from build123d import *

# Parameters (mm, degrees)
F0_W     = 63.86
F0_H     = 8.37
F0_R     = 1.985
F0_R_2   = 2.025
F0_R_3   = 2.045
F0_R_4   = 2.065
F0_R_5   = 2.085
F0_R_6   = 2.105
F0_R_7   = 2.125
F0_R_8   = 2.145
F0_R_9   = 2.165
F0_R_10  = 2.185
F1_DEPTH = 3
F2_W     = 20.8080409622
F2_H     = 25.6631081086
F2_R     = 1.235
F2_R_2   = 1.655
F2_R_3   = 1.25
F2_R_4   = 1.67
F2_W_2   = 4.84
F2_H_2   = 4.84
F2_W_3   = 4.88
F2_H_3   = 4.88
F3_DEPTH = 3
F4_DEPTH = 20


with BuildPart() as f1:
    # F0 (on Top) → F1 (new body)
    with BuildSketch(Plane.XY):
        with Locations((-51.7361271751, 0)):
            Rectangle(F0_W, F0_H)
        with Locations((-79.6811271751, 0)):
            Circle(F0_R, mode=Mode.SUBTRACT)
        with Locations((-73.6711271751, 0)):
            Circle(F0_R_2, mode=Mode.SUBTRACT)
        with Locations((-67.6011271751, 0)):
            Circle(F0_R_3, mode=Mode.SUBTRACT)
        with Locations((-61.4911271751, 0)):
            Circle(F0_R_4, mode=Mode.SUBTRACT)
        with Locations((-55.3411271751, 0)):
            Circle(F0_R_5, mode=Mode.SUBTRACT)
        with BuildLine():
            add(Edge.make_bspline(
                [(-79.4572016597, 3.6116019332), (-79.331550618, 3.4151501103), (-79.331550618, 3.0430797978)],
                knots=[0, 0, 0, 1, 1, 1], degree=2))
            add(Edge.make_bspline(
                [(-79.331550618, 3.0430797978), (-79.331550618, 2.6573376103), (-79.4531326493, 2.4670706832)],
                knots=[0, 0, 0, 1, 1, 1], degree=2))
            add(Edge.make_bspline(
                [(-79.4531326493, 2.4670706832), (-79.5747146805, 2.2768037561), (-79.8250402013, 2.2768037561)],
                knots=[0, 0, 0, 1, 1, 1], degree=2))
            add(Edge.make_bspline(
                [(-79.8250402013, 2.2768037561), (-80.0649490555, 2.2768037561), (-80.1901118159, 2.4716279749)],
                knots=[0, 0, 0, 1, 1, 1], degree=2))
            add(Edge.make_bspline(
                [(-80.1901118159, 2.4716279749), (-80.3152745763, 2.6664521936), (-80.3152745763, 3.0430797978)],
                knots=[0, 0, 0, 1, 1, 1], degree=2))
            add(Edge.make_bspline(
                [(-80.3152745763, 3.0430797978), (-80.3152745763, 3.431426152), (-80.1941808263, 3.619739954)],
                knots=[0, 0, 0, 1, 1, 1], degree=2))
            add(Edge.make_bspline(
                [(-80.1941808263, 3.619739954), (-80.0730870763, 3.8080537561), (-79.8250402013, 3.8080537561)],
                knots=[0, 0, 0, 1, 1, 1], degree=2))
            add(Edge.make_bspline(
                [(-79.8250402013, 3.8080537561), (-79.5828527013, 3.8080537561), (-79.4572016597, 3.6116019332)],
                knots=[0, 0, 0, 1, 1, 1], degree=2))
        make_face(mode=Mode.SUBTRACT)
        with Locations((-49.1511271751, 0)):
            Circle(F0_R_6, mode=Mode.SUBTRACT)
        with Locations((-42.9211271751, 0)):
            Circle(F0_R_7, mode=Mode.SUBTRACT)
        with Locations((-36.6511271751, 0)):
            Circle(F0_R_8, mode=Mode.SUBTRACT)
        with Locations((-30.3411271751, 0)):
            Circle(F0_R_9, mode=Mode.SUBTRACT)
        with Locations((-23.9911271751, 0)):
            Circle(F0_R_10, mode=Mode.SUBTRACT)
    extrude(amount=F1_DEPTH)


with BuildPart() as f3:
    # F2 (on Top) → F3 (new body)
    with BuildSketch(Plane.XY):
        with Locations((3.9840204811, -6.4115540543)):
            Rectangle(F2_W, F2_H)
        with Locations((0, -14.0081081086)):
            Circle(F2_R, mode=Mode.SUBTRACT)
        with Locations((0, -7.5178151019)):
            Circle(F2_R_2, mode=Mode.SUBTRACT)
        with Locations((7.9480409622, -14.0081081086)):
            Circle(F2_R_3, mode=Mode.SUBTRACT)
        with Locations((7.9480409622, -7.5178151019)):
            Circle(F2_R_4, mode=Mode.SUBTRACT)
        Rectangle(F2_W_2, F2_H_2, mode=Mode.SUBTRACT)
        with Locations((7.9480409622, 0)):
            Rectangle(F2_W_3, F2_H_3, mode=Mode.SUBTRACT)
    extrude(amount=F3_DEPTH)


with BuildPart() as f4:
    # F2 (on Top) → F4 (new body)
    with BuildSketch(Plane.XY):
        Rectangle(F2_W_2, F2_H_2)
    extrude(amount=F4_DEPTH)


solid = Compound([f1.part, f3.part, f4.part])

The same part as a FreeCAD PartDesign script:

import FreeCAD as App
import Part
import Sketcher
Q = App.Units.Quantity

doc = App.newDocument("Part")
body = doc.addObject("PartDesign::Body", "Body")

sketch1 = doc.addObject("Sketcher::SketchObject", "Sketch")
body.addObject(sketch1)
sketch1.AttachmentSupport = (doc.XY_Plane, [""])
sketch1.MapMode = "FlatFace"
sketch1.addGeometry(Part.LineSegment(App.Vector(-83.666127, 4.185, 0), App.Vector(-83.666127, -4.185, 0)), False)
sketch1.addGeometry(Part.LineSegment(App.Vector(-83.666127, -4.185, 0), App.Vector(-19.806127, -4.185, 0)), False)
sketch1.addGeometry(Part.LineSegment(App.Vector(-19.806127, -4.185, 0), App.Vector(-19.806127, 4.185, 0)), False)
sketch1.addGeometry(Part.LineSegment(App.Vector(-19.806127, 4.185, 0), App.Vector(-83.666127, 4.185, 0)), False)
sketch1.addGeometry(Part.Circle(App.Vector(-79.681127, 0, 0), App.Vector(0, 0, 1), 1.985), False)
sketch1.addGeometry(Part.Circle(App.Vector(-73.671127, 0, 0), App.Vector(0, 0, 1), 2.025), False)
sketch1.addGeometry(Part.Circle(App.Vector(-67.601127, 0, 0), App.Vector(0, 0, 1), 2.045), False)
sketch1.addGeometry(Part.Circle(App.Vector(-61.491127, 0, 0), App.Vector(0, 0, 1), 2.065), False)
sketch1.addGeometry(Part.Circle(App.Vector(-55.341127, 0, 0), App.Vector(0, 0, 1), 2.085), False)
sketch1.addGeometry(Part.Circle(App.Vector(-49.151127, 0, 0), App.Vector(0, 0, 1), 2.105), False)
sketch1.addGeometry(Part.Circle(App.Vector(-42.921127, 0, 0), App.Vector(0, 0, 1), 2.125), False)
sketch1.addGeometry(Part.Circle(App.Vector(-36.651127, 0, 0), App.Vector(0, 0, 1), 2.145), False)
sketch1.addGeometry(Part.Circle(App.Vector(-30.341127, 0, 0), App.Vector(0, 0, 1), 2.165), False)
sketch1.addGeometry(Part.Circle(App.Vector(-23.991127, 0, 0), App.Vector(0, 0, 1), 2.185), False)
sketch1.addGeometry(Part.BSplineCurve([App.Vector(-80.194181, 3.61974, 0), App.Vector(-80.073087, 3.808054, 0), App.Vector(-79.582853, 3.808054, 0), App.Vector(-79.457202, 3.611602, 0)], [3, 1, 3], [0, 1, 1.976377953], False, 2, [1, 1, 1, 1], False), False)
sketch1.addGeometry(Part.BSplineCurve([App.Vector(-79.457202, 3.611602, 0), App.Vector(-79.331551, 3.41515, 0), App.Vector(-79.331551, 2.657338, 0), App.Vector(-79.453133, 2.467071, 0)], [3, 1, 3], [0, 1, 2.036745407], False, 2, [1, 1, 1, 1], False), False)
sketch1.addGeometry(Part.BSplineCurve([App.Vector(-79.453133, 2.467071, 0), App.Vector(-79.574715, 2.276804, 0), App.Vector(-80.064949, 2.276804, 0), App.Vector(-80.190112, 2.471628, 0)], [3, 1, 3], [0, 1, 1.958387517], False, 2, [1, 1, 1, 1], False), False)
sketch1.addGeometry(Part.BSplineCurve([App.Vector(-80.190112, 2.471628, 0), App.Vector(-80.315275, 2.666452, 0), App.Vector(-80.315275, 3.431426, 0), App.Vector(-80.194181, 3.61974, 0)], [3, 1, 3], [0, 1, 2.031114952], False, 2, [1, 1, 1, 1], False), False)
sketch1.addConstraint(Sketcher.Constraint("Block", 14))
sketch1.addConstraint(Sketcher.Constraint("Block", 15))
sketch1.addConstraint(Sketcher.Constraint("Block", 16))
sketch1.addConstraint(Sketcher.Constraint("Block", 17))
sketch1.addConstraint(Sketcher.Constraint("Coincident", 0, 2, 1, 1))
sketch1.addConstraint(Sketcher.Constraint("Coincident", 1, 2, 2, 1))
sketch1.addConstraint(Sketcher.Constraint("Coincident", 2, 2, 3, 1))
sketch1.addConstraint(Sketcher.Constraint("Coincident", 3, 2, 0, 1))
sketch1.addConstraint(Sketcher.Constraint("Vertical", 0))
sketch1.addConstraint(Sketcher.Constraint("Horizontal", 1))
sketch1.addConstraint(Sketcher.Constraint("Vertical", 2))
sketch1.addConstraint(Sketcher.Constraint("Horizontal", 3))
sketch1.addConstraint(Sketcher.Constraint("PointOnObject", 4, 3, -1))
sketch1.addConstraint(Sketcher.Constraint("PointOnObject", 5, 3, -1))
sketch1.addConstraint(Sketcher.Constraint("PointOnObject", 6, 3, -1))
sketch1.addConstraint(Sketcher.Constraint("PointOnObject", 7, 3, -1))
sketch1.addConstraint(Sketcher.Constraint("PointOnObject", 8, 3, -1))
sketch1.addConstraint(Sketcher.Constraint("PointOnObject", 9, 3, -1))
sketch1.addConstraint(Sketcher.Constraint("PointOnObject", 10, 3, -1))
sketch1.addConstraint(Sketcher.Constraint("PointOnObject", 11, 3, -1))
sketch1.addConstraint(Sketcher.Constraint("PointOnObject", 12, 3, -1))
sketch1.addConstraint(Sketcher.Constraint("PointOnObject", 13, 3, -1))
sketch1.addConstraint(Sketcher.Constraint("Diameter", 4, Q("3.97 mm")))
sketch1.addConstraint(Sketcher.Constraint("Diameter", 5, Q("4.05 mm")))
sketch1.addConstraint(Sketcher.Constraint("Diameter", 6, Q("4.09 mm")))
sketch1.addConstraint(Sketcher.Constraint("Diameter", 7, Q("4.13 mm")))
sketch1.addConstraint(Sketcher.Constraint("Diameter", 8, Q("4.17 mm")))
sketch1.addConstraint(Sketcher.Constraint("Diameter", 9, Q("4.21 mm")))
sketch1.addConstraint(Sketcher.Constraint("Diameter", 10, Q("4.25 mm")))
sketch1.addConstraint(Sketcher.Constraint("Diameter", 11, Q("4.29 mm")))
sketch1.addConstraint(Sketcher.Constraint("Diameter", 12, Q("4.33 mm")))
sketch1.addConstraint(Sketcher.Constraint("Diameter", 13, Q("4.37 mm")))
sketch1.addConstraint(Sketcher.Constraint("DistanceX", 8, 3, 12, 3, Q("25 mm")))
sketch1.addConstraint(Sketcher.Constraint("DistanceX", 1, 1, 1, 2, Q("63.86 mm")))
sketch1.addConstraint(Sketcher.Constraint("DistanceY", 0, 2, 0, 1, Q("8.37 mm")))
sketch1.addConstraint(Sketcher.Constraint("DistanceX", 9, 3, 11, 3, Q("12.5 mm")))
sketch1.addConstraint(Sketcher.Constraint("DistanceX", 4, 3, 5, 3, Q("6.01 mm")))
sketch1.addConstraint(Sketcher.Constraint("DistanceX", 5, 3, 6, 3, Q("6.07 mm")))
sketch1.addConstraint(Sketcher.Constraint("DistanceX", 6, 3, 7, 3, Q("6.11 mm")))
sketch1.addConstraint(Sketcher.Constraint("DistanceX", 7, 3, 8, 3, Q("6.15 mm")))
sketch1.addConstraint(Sketcher.Constraint("DistanceX", 8, 3, 9, 3, Q("6.19 mm")))
sketch1.addConstraint(Sketcher.Constraint("DistanceX", 9, 3, 10, 3, Q("6.23 mm")))
sketch1.addConstraint(Sketcher.Constraint("DistanceX", 12, 3, 13, 3, Q("6.35 mm")))
sketch1.addConstraint(Sketcher.Constraint("DistanceY", 0, 2, -1, 1, Q("4.185 mm")))
sketch1.addConstraint(Sketcher.Constraint("DistanceX", 0, 2, 4, 3, Q("3.985 mm")))
sketch1.addConstraint(Sketcher.Constraint("DistanceX", 4, 3, -1, 1, Q("79.681127 mm")))
pad1 = doc.addObject("PartDesign::Pad", "Pad")
body.addObject(pad1)
pad1.Profile = sketch1
pad1.Length = 3
body2 = doc.addObject("PartDesign::Body", "Body001")

sketch2 = doc.addObject("Sketcher::SketchObject", "Sketch001")
body2.addObject(sketch2)
sketch2.AttachmentSupport = (doc.getObject("XY_Plane001"), [""])
sketch2.MapMode = "FlatFace"
sketch2.addGeometry(Part.LineSegment(App.Vector(-6.4, 6.4, 0), App.Vector(-6.4, -19.2, 0)), False)
sketch2.addGeometry(Part.LineSegment(App.Vector(-6.4, -19.2, 0), App.Vector(14.4, -19.2, 0)), False)
sketch2.addGeometry(Part.LineSegment(App.Vector(14.4, -19.2, 0), App.Vector(14.4, 6.4, 0)), False)
sketch2.addGeometry(Part.LineSegment(App.Vector(14.4, 6.4, 0), App.Vector(-6.4, 6.4, 0)), False)
sketch2.addGeometry(Part.Circle(App.Vector(0, -14, 0), App.Vector(0, 0, 1), 1.2), False)
sketch2.addGeometry(Part.Circle(App.Vector(0, -7.5, 0), App.Vector(0, 0, 1), 1.7), False)
sketch2.addGeometry(Part.Circle(App.Vector(7.9, -14, 0), App.Vector(0, 0, 1), 1.2), False)
sketch2.addGeometry(Part.Circle(App.Vector(7.9, -7.5, 0), App.Vector(0, 0, 1), 1.7), False)
sketch2.addGeometry(Part.LineSegment(App.Vector(2.4, -2.4, 0), App.Vector(-2.4, -2.4, 0)), False)
sketch2.addGeometry(Part.LineSegment(App.Vector(-2.4, -2.4, 0), App.Vector(-2.4, 2.4, 0)), False)
sketch2.addGeometry(Part.LineSegment(App.Vector(-2.4, 2.4, 0), App.Vector(2.4, 2.4, 0)), False)
sketch2.addGeometry(Part.LineSegment(App.Vector(2.4, 2.4, 0), App.Vector(2.4, -2.4, 0)), False)
sketch2.addGeometry(Part.LineSegment(App.Vector(10.4, -2.4, 0), App.Vector(5.5, -2.4, 0)), False)
sketch2.addGeometry(Part.LineSegment(App.Vector(5.5, -2.4, 0), App.Vector(5.5, 2.4, 0)), False)
sketch2.addGeometry(Part.LineSegment(App.Vector(5.5, 2.4, 0), App.Vector(10.4, 2.4, 0)), False)
sketch2.addGeometry(Part.LineSegment(App.Vector(10.4, 2.4, 0), App.Vector(10.4, -2.4, 0)), False)
sketch2.addConstraint(Sketcher.Constraint("Coincident", 0, 2, 1, 1))
sketch2.addConstraint(Sketcher.Constraint("Coincident", 1, 2, 2, 1))
sketch2.addConstraint(Sketcher.Constraint("Coincident", 2, 2, 3, 1))
sketch2.addConstraint(Sketcher.Constraint("Coincident", 3, 2, 0, 1))
sketch2.addConstraint(Sketcher.Constraint("Coincident", 8, 2, 9, 1))
sketch2.addConstraint(Sketcher.Constraint("Coincident", 9, 2, 10, 1))
sketch2.addConstraint(Sketcher.Constraint("Coincident", 10, 2, 11, 1))
sketch2.addConstraint(Sketcher.Constraint("Coincident", 11, 2, 8, 1))
sketch2.addConstraint(Sketcher.Constraint("Coincident", 12, 2, 13, 1))
sketch2.addConstraint(Sketcher.Constraint("Coincident", 13, 2, 14, 1))
sketch2.addConstraint(Sketcher.Constraint("Coincident", 14, 2, 15, 1))
sketch2.addConstraint(Sketcher.Constraint("Coincident", 15, 2, 12, 1))
sketch2.addConstraint(Sketcher.Constraint("Vertical", 0))
sketch2.addConstraint(Sketcher.Constraint("Horizontal", 1))
sketch2.addConstraint(Sketcher.Constraint("Vertical", 2))
sketch2.addConstraint(Sketcher.Constraint("Horizontal", 3))
sketch2.addConstraint(Sketcher.Constraint("Horizontal", 8))
sketch2.addConstraint(Sketcher.Constraint("Vertical", 9))
sketch2.addConstraint(Sketcher.Constraint("Horizontal", 10))
sketch2.addConstraint(Sketcher.Constraint("Vertical", 11))
sketch2.addConstraint(Sketcher.Constraint("Horizontal", 12))
sketch2.addConstraint(Sketcher.Constraint("Vertical", 13))
sketch2.addConstraint(Sketcher.Constraint("Horizontal", 14))
sketch2.addConstraint(Sketcher.Constraint("Vertical", 15))
sketch2.addConstraint(Sketcher.Constraint("Symmetric", 8, 2, 10, 2, -1, 1))
sketch2.addConstraint(Sketcher.Constraint("PointOnObject", 4, 3, -2))
sketch2.addConstraint(Sketcher.Constraint("PointOnObject", 5, 3, -2))
sketch2.addConstraint(Sketcher.Constraint("Horizontal", 4, 3, 6, 3))
sketch2.addConstraint(Sketcher.Constraint("Horizontal", 5, 3, 7, 3))
sketch2.addConstraint(Sketcher.Constraint("Vertical", 6, 3, 7, 3))
sketch2.addConstraint(Sketcher.Constraint("Equal", 10, 9))
sketch2.addConstraint(Sketcher.Constraint("Equal", 14, 13))
sketch2.addConstraint(Sketcher.Constraint("Diameter", 6, Q("2.5 mm")))
sketch2.addConstraint(Sketcher.Constraint("Diameter", 4, Q("2.47 mm")))
sketch2.addConstraint(Sketcher.Constraint("Diameter", 5, Q("3.31 mm")))
sketch2.addConstraint(Sketcher.Constraint("Diameter", 7, Q("3.34 mm")))
sketch2.addConstraint(Sketcher.Constraint("DistanceX", 3, 2, 8, 2, Q("4 mm")))
sketch2.addConstraint(Sketcher.Constraint("DistanceY", 9, 2, 3, 2, Q("4 mm")))
sketch2.addConstraint(Sketcher.Constraint("DistanceX", 14, 2, 2, 2, Q("4 mm")))
sketch2.addConstraint(Sketcher.Constraint("DistanceX", 8, 2, 8, 1, Q("4.84 mm")))
sketch2.addConstraint(Sketcher.Constraint("DistanceX", 12, 2, 12, 1, Q("4.88 mm")))
sketch2.addConstraint(Sketcher.Constraint("DistanceY", 12, 2, -1, 1, Q("2.44 mm")))
sketch2.addConstraint(Sketcher.Constraint("DistanceX", 6, 3, 1, 2, Q("6.44 mm")))
sketch2.addConstraint(Sketcher.Constraint("DistanceY", 0, 2, 4, 3, Q("5.235 mm")))
sketch2.addConstraint(Sketcher.Constraint("DistanceX", 1, 1, 1, 2, Q("20.808041 mm")))
sketch2.addConstraint(Sketcher.Constraint("DistanceY", 0, 2, 0, 1, Q("25.663108 mm")))
sketch2.addConstraint(Sketcher.Constraint("DistanceY", 5, 3, -1, 1, Q("7.517815 mm")))
pad2 = doc.addObject("PartDesign::Pad", "Pad001")
body2.addObject(pad2)
pad2.Profile = sketch2
pad2.Length = 3
body3 = doc.addObject("PartDesign::Body", "Body002")

sketch3 = doc.addObject("Sketcher::SketchObject", "Sketch002")
body3.addObject(sketch3)
sketch3.AttachmentSupport = (doc.getObject("XY_Plane002"), [""])
sketch3.MapMode = "FlatFace"
sketch3.addGeometry(Part.LineSegment(App.Vector(-2.4, 2.4, 0), App.Vector(-2.4, -2.4, 0)), False)
sketch3.addGeometry(Part.LineSegment(App.Vector(-2.4, -2.4, 0), App.Vector(2.4, -2.4, 0)), False)
sketch3.addGeometry(Part.LineSegment(App.Vector(2.4, -2.4, 0), App.Vector(2.4, 2.4, 0)), False)
sketch3.addGeometry(Part.LineSegment(App.Vector(2.4, 2.4, 0), App.Vector(-2.4, 2.4, 0)), False)
sketch3.addConstraint(Sketcher.Constraint("Coincident", 0, 2, 1, 1))
sketch3.addConstraint(Sketcher.Constraint("Coincident", 1, 2, 2, 1))
sketch3.addConstraint(Sketcher.Constraint("Coincident", 2, 2, 3, 1))
sketch3.addConstraint(Sketcher.Constraint("Coincident", 3, 2, 0, 1))
sketch3.addConstraint(Sketcher.Constraint("Vertical", 0))
sketch3.addConstraint(Sketcher.Constraint("Horizontal", 1))
sketch3.addConstraint(Sketcher.Constraint("Vertical", 2))
sketch3.addConstraint(Sketcher.Constraint("Horizontal", 3))
sketch3.addConstraint(Sketcher.Constraint("Symmetric", 0, 2, 2, 2, -1, 1))
sketch3.addConstraint(Sketcher.Constraint("Equal", 3, 0))
sketch3.addConstraint(Sketcher.Constraint("DistanceX", 1, 1, 1, 2, Q("4.84 mm")))
pad3 = doc.addObject("PartDesign::Pad", "Pad002")
body3.addObject(pad3)
pad3.Profile = sketch3
pad3.Length = 20

doc.recompute()
